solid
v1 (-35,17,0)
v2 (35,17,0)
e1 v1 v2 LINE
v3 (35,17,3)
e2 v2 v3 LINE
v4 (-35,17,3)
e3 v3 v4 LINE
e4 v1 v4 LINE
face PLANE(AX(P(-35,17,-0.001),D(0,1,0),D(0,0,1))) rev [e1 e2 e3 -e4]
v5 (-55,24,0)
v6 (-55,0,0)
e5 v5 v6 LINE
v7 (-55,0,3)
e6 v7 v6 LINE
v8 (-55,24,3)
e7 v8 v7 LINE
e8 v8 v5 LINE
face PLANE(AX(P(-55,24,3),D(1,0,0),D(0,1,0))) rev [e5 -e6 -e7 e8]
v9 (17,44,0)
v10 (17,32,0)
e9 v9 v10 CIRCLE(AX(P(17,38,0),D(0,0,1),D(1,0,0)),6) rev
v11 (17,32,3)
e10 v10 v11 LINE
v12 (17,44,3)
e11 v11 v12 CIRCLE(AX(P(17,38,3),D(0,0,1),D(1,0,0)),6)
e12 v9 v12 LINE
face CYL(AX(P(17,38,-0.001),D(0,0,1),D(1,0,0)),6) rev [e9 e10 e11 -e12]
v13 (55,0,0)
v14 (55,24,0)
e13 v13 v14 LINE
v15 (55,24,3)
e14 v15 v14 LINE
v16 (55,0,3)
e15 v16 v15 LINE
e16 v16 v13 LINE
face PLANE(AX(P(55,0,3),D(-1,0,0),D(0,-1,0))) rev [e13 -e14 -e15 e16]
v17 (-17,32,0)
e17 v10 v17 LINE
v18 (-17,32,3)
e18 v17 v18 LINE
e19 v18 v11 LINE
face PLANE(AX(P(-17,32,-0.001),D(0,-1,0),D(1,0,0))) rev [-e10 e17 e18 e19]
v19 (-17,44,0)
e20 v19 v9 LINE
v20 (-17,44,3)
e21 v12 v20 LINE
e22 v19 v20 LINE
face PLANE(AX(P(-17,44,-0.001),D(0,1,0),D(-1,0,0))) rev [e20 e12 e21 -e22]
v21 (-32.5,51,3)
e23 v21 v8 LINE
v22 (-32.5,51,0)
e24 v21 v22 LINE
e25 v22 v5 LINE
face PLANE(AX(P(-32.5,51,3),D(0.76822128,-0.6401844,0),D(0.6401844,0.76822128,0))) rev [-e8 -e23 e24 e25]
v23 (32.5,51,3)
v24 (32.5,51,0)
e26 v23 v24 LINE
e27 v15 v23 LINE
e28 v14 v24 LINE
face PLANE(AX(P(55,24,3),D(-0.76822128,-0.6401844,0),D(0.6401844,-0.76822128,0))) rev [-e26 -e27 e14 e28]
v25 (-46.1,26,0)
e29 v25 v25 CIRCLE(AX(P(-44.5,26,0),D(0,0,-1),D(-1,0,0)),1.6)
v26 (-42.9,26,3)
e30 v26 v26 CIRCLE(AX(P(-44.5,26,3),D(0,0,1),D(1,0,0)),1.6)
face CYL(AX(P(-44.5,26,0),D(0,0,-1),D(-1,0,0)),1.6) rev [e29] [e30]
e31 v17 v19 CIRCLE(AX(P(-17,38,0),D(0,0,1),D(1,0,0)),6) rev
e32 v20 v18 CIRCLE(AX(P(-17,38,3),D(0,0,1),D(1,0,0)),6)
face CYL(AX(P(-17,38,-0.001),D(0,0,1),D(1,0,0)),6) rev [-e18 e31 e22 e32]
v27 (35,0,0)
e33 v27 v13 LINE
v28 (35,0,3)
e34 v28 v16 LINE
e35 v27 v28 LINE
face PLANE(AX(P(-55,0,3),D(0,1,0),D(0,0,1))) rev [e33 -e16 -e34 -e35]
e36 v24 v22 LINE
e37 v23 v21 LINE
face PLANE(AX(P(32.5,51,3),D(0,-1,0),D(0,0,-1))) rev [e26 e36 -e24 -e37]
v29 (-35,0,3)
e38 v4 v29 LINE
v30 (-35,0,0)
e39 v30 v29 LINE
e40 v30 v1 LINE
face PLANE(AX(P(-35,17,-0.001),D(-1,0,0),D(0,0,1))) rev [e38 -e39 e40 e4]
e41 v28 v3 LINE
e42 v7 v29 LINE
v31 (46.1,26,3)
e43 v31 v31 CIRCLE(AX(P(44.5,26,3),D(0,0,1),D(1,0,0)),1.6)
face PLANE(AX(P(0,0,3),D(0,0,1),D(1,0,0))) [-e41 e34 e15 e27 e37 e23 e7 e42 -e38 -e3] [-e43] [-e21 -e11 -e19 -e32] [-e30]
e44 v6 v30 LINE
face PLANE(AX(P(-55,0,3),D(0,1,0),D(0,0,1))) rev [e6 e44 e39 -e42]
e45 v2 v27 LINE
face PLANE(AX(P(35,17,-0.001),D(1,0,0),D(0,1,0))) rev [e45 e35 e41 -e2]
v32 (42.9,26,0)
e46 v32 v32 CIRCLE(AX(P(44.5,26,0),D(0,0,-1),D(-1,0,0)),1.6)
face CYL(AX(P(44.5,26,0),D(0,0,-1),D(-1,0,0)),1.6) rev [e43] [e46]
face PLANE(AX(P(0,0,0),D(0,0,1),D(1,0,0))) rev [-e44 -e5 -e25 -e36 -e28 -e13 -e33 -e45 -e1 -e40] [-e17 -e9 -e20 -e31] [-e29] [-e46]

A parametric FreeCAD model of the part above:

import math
import FreeCAD as App
import Part
import Sketcher

V = App.Vector


def add_polygon(sketch, points):
    """Adds a closed chain of lines whose ends are joined by coincident constraints."""
    first, n = sketch.GeometryCount, len(points)
    for a, b in zip(points, points[1:] + points[:1]):
        sketch.addGeometry(Part.LineSegment(App.Vector(*a, 0), App.Vector(*b, 0)), False)
    for i in range(n):
        sketch.addConstraint(Sketcher.Constraint("Coincident", first + i, 2, first + (i + 1) % n, 1))

doc = App.newDocument("Part")
params = doc.addObject("Spreadsheet::Sheet", "Params")
for row, (alias, value) in enumerate([
    ("sketch1_width", "110 mm"),
    ("sketch1_width2", "65 mm"),
    ("sketch1_height", "24 mm"),
    ("pad1_length", "3 mm"),
    ("sketch2_diameter", "3.2 mm"),
    ("hole_diameter", "3.2 mm"),
    ("hole_depth", "5 mm"),
    ("sketch3_width", "70 mm"),
    ("sketch3_height", "17 mm"),
    ("sketch4_radius", "6 mm"),
    ("sketch4_width", "34 mm"),
], start=1):
    params.set(f"A{row}", alias)
    params.set(f"B{row}", "=" + value)
    params.setAlias(f"B{row}", alias)

body = doc.addObject("PartDesign::Body", "Body")

# Sketch on XY plane
sketch1 = doc.addObject("Sketcher::SketchObject", "Sketch")
body.addObject(sketch1)
sketch1.AttachmentSupport = (doc.XY_Plane, [""])
sketch1.MapMode = "FlatFace"
add_polygon(sketch1, [(-55, 0), (55, 0), (55, 24), (32, 51), (-32, 51), (-55, 24)])  # lines 0-5
sketch1.addConstraint(Sketcher.Constraint("Horizontal", 0))
sketch1.addConstraint(Sketcher.Constraint("Vertical", 1))
sketch1.addConstraint(Sketcher.Constraint("Horizontal", 3))
sketch1.addConstraint(Sketcher.Constraint("Vertical", 5))
sketch1.addConstraint(Sketcher.Constraint("Symmetric", 0, 2, 5, 2, -1, 1))
sketch1.addConstraint(Sketcher.Constraint("Horizontal", 1, 2, 4, 2))
sketch1.addConstraint(Sketcher.Constraint("Equal", 2, 4))
sketch1.addConstraint(Sketcher.Constraint("DistanceX", 0, 1, 0, 2, 110.0))
sketch1.addConstraint(Sketcher.Constraint("DistanceX", 3, 2, 3, 1, 65.0))
sketch1.addConstraint(Sketcher.Constraint("DistanceY", 1, 1, 1, 2, 24.0))
sketch1.addConstraint(Sketcher.Constraint("DistanceY", -1, 1, 2, 2, 51.0))
sketch1.setExpression("Constraints[13]", "Params.sketch1_width")
sketch1.setExpression("Constraints[14]", "Params.sketch1_width2")
sketch1.setExpression("Constraints[15]", "Params.sketch1_height")
pad1 = doc.addObject("PartDesign::Pad", "Pad")
body.addObject(pad1)
pad1.Profile = sketch1
pad1.setExpression("Length", "Params.pad1_length")

# Sketch on XY plane
sketch2 = doc.addObject("Sketcher::SketchObject", "Sketch001")
body.addObject(sketch2)
sketch2.AttachmentSupport = (doc.XY_Plane, [""])
sketch2.MapMode = "FlatFace"
sketch2.addGeometry(Part.Circle(V(44.5, 26, 0), V(0, 0, 1), 1.6), False)
sketch2.addGeometry(Part.Circle(V(-44.5, 26, 0), V(0, 0, 1), 1.6), False)
sketch2.addConstraint(Sketcher.Constraint("Equal", 0, 1))
sketch2.addConstraint(Sketcher.Constraint("Symmetric", 0, 3, 1, 3, -2))
sketch2.addConstraint(Sketcher.Constraint("Diameter", 0, 3.2))
sketch2.addConstraint(Sketcher.Constraint("DistanceY", -1, 1, 0, 3, 26.0))
sketch2.addConstraint(Sketcher.Constraint("DistanceX", 1, 3, 0, 3, 89.0))
sketch2.setExpression("Constraints[2]", "Params.sketch2_diameter")
doc.recompute()
hole = doc.addObject("PartDesign::Hole", "Hole")
body.addObject(hole)
hole.Profile = sketch2
hole.ThreadType = "None"
hole.setExpression("Diameter", "Params.hole_diameter")
hole.DepthType = "Dimension"
hole.setExpression("Depth", "Params.hole_depth")
hole.DrillPoint = "Angled"
hole.DrillPointAngle = 118
hole.Reversed = True

# Sketch on XY plane
sketch3 = doc.addObject("Sketcher::SketchObject", "Sketch002")
body.addObject(sketch3)
sketch3.AttachmentSupport = (doc.XY_Plane, [""])
sketch3.MapMode = "FlatFace"
sketch3.AttachmentOffset = App.Placement(V(0, 0, 3), App.Rotation())
add_polygon(sketch3, [(-35, 17), (-35, 0), (35, 0), (35, 17)])  # lines 0-3
sketch3.addConstraint(Sketcher.Constraint("Vertical", 0))
sketch3.addConstraint(Sketcher.Constraint("Horizontal", 1))
sketch3.addConstraint(Sketcher.Constraint("Vertical", 2))
sketch3.addConstraint(Sketcher.Constraint("Horizontal", 3))
sketch3.addConstraint(Sketcher.Constraint("Symmetric", 0, 2, 1, 2, -1, 1))
sketch3.addConstraint(Sketcher.Constraint("DistanceX", 1, 1, 1, 2, 70.0))
sketch3.addConstraint(Sketcher.Constraint("DistanceY", 0, 2, 0, 1, 17.0))
sketch3.setExpression("Constraints[9]", "Params.sketch3_width")
sketch3.setExpression("Constraints[10]", "Params.sketch3_height")
pocket1 = doc.addObject("PartDesign::Pocket", "Pocket")
body.addObject(pocket1)
pocket1.Profile = sketch3
pocket1.Type = "UpToFirst"

# Sketch on XY plane
sketch4 = doc.addObject("Sketcher::SketchObject", "Sketch003")
body.addObject(sketch4)
sketch4.AttachmentSupport = (doc.XY_Plane, [""])
sketch4.MapMode = "FlatFace"
sketch4.AttachmentOffset = App.Placement(V(0, 0, 3), App.Rotation())
sketch4.addGeometry(Part.LineSegment(V(17, 44, 0), V(-17, 44, 0)), False)
sketch4.addGeometry(Part.ArcOfCircle(Part.Circle(V(-17, 38, 0), V(0, 0, 1), 6), math.radians(90), math.radians(270)), False)
sketch4.addGeometry(Part.LineSegment(V(-17, 32, 0), V(17, 32, 0)), False)
sketch4.addGeometry(Part.ArcOfCircle(Part.Circle(V(17, 38, 0), V(0, 0, 1), 6), math.radians(-90), math.radians(90)), False)
sketch4.addConstraint(Sketcher.Constraint("Tangent", 0, 2, 1, 1))
sketch4.addConstraint(Sketcher.Constraint("Tangent", 1, 2, 2, 1))
sketch4.addConstraint(Sketcher.Constraint("Tangent", 2, 2, 3, 1))
sketch4.addConstraint(Sketcher.Constraint("Tangent", 3, 2, 0, 1))
sketch4.addConstraint(Sketcher.Constraint("Horizontal", 0))
sketch4.addConstraint(Sketcher.Constraint("Horizontal", 2))
sketch4.addConstraint(Sketcher.Constraint("Radius", 1, 6.0))
sketch4.addConstraint(Sketcher.Constraint("DistanceX", 0, 2, 0, 1, 34.0))
sketch4.addConstraint(Sketcher.Constraint("DistanceX", 1, 3, -1, 1, 17.0))
sketch4.addConstraint(Sketcher.Constraint("DistanceY", -1, 1, 1, 3, 38.0))
sketch4.setExpression("Constraints[6]", "Params.sketch4_radius")
sketch4.setExpression("Constraints[7]", "Params.sketch4_width")
pocket2 = doc.addObject("PartDesign::Pocket", "Pocket001")
body.addObject(pocket2)
pocket2.Profile = sketch4
pocket2.Type = "UpToFirst"

doc.recompute()
